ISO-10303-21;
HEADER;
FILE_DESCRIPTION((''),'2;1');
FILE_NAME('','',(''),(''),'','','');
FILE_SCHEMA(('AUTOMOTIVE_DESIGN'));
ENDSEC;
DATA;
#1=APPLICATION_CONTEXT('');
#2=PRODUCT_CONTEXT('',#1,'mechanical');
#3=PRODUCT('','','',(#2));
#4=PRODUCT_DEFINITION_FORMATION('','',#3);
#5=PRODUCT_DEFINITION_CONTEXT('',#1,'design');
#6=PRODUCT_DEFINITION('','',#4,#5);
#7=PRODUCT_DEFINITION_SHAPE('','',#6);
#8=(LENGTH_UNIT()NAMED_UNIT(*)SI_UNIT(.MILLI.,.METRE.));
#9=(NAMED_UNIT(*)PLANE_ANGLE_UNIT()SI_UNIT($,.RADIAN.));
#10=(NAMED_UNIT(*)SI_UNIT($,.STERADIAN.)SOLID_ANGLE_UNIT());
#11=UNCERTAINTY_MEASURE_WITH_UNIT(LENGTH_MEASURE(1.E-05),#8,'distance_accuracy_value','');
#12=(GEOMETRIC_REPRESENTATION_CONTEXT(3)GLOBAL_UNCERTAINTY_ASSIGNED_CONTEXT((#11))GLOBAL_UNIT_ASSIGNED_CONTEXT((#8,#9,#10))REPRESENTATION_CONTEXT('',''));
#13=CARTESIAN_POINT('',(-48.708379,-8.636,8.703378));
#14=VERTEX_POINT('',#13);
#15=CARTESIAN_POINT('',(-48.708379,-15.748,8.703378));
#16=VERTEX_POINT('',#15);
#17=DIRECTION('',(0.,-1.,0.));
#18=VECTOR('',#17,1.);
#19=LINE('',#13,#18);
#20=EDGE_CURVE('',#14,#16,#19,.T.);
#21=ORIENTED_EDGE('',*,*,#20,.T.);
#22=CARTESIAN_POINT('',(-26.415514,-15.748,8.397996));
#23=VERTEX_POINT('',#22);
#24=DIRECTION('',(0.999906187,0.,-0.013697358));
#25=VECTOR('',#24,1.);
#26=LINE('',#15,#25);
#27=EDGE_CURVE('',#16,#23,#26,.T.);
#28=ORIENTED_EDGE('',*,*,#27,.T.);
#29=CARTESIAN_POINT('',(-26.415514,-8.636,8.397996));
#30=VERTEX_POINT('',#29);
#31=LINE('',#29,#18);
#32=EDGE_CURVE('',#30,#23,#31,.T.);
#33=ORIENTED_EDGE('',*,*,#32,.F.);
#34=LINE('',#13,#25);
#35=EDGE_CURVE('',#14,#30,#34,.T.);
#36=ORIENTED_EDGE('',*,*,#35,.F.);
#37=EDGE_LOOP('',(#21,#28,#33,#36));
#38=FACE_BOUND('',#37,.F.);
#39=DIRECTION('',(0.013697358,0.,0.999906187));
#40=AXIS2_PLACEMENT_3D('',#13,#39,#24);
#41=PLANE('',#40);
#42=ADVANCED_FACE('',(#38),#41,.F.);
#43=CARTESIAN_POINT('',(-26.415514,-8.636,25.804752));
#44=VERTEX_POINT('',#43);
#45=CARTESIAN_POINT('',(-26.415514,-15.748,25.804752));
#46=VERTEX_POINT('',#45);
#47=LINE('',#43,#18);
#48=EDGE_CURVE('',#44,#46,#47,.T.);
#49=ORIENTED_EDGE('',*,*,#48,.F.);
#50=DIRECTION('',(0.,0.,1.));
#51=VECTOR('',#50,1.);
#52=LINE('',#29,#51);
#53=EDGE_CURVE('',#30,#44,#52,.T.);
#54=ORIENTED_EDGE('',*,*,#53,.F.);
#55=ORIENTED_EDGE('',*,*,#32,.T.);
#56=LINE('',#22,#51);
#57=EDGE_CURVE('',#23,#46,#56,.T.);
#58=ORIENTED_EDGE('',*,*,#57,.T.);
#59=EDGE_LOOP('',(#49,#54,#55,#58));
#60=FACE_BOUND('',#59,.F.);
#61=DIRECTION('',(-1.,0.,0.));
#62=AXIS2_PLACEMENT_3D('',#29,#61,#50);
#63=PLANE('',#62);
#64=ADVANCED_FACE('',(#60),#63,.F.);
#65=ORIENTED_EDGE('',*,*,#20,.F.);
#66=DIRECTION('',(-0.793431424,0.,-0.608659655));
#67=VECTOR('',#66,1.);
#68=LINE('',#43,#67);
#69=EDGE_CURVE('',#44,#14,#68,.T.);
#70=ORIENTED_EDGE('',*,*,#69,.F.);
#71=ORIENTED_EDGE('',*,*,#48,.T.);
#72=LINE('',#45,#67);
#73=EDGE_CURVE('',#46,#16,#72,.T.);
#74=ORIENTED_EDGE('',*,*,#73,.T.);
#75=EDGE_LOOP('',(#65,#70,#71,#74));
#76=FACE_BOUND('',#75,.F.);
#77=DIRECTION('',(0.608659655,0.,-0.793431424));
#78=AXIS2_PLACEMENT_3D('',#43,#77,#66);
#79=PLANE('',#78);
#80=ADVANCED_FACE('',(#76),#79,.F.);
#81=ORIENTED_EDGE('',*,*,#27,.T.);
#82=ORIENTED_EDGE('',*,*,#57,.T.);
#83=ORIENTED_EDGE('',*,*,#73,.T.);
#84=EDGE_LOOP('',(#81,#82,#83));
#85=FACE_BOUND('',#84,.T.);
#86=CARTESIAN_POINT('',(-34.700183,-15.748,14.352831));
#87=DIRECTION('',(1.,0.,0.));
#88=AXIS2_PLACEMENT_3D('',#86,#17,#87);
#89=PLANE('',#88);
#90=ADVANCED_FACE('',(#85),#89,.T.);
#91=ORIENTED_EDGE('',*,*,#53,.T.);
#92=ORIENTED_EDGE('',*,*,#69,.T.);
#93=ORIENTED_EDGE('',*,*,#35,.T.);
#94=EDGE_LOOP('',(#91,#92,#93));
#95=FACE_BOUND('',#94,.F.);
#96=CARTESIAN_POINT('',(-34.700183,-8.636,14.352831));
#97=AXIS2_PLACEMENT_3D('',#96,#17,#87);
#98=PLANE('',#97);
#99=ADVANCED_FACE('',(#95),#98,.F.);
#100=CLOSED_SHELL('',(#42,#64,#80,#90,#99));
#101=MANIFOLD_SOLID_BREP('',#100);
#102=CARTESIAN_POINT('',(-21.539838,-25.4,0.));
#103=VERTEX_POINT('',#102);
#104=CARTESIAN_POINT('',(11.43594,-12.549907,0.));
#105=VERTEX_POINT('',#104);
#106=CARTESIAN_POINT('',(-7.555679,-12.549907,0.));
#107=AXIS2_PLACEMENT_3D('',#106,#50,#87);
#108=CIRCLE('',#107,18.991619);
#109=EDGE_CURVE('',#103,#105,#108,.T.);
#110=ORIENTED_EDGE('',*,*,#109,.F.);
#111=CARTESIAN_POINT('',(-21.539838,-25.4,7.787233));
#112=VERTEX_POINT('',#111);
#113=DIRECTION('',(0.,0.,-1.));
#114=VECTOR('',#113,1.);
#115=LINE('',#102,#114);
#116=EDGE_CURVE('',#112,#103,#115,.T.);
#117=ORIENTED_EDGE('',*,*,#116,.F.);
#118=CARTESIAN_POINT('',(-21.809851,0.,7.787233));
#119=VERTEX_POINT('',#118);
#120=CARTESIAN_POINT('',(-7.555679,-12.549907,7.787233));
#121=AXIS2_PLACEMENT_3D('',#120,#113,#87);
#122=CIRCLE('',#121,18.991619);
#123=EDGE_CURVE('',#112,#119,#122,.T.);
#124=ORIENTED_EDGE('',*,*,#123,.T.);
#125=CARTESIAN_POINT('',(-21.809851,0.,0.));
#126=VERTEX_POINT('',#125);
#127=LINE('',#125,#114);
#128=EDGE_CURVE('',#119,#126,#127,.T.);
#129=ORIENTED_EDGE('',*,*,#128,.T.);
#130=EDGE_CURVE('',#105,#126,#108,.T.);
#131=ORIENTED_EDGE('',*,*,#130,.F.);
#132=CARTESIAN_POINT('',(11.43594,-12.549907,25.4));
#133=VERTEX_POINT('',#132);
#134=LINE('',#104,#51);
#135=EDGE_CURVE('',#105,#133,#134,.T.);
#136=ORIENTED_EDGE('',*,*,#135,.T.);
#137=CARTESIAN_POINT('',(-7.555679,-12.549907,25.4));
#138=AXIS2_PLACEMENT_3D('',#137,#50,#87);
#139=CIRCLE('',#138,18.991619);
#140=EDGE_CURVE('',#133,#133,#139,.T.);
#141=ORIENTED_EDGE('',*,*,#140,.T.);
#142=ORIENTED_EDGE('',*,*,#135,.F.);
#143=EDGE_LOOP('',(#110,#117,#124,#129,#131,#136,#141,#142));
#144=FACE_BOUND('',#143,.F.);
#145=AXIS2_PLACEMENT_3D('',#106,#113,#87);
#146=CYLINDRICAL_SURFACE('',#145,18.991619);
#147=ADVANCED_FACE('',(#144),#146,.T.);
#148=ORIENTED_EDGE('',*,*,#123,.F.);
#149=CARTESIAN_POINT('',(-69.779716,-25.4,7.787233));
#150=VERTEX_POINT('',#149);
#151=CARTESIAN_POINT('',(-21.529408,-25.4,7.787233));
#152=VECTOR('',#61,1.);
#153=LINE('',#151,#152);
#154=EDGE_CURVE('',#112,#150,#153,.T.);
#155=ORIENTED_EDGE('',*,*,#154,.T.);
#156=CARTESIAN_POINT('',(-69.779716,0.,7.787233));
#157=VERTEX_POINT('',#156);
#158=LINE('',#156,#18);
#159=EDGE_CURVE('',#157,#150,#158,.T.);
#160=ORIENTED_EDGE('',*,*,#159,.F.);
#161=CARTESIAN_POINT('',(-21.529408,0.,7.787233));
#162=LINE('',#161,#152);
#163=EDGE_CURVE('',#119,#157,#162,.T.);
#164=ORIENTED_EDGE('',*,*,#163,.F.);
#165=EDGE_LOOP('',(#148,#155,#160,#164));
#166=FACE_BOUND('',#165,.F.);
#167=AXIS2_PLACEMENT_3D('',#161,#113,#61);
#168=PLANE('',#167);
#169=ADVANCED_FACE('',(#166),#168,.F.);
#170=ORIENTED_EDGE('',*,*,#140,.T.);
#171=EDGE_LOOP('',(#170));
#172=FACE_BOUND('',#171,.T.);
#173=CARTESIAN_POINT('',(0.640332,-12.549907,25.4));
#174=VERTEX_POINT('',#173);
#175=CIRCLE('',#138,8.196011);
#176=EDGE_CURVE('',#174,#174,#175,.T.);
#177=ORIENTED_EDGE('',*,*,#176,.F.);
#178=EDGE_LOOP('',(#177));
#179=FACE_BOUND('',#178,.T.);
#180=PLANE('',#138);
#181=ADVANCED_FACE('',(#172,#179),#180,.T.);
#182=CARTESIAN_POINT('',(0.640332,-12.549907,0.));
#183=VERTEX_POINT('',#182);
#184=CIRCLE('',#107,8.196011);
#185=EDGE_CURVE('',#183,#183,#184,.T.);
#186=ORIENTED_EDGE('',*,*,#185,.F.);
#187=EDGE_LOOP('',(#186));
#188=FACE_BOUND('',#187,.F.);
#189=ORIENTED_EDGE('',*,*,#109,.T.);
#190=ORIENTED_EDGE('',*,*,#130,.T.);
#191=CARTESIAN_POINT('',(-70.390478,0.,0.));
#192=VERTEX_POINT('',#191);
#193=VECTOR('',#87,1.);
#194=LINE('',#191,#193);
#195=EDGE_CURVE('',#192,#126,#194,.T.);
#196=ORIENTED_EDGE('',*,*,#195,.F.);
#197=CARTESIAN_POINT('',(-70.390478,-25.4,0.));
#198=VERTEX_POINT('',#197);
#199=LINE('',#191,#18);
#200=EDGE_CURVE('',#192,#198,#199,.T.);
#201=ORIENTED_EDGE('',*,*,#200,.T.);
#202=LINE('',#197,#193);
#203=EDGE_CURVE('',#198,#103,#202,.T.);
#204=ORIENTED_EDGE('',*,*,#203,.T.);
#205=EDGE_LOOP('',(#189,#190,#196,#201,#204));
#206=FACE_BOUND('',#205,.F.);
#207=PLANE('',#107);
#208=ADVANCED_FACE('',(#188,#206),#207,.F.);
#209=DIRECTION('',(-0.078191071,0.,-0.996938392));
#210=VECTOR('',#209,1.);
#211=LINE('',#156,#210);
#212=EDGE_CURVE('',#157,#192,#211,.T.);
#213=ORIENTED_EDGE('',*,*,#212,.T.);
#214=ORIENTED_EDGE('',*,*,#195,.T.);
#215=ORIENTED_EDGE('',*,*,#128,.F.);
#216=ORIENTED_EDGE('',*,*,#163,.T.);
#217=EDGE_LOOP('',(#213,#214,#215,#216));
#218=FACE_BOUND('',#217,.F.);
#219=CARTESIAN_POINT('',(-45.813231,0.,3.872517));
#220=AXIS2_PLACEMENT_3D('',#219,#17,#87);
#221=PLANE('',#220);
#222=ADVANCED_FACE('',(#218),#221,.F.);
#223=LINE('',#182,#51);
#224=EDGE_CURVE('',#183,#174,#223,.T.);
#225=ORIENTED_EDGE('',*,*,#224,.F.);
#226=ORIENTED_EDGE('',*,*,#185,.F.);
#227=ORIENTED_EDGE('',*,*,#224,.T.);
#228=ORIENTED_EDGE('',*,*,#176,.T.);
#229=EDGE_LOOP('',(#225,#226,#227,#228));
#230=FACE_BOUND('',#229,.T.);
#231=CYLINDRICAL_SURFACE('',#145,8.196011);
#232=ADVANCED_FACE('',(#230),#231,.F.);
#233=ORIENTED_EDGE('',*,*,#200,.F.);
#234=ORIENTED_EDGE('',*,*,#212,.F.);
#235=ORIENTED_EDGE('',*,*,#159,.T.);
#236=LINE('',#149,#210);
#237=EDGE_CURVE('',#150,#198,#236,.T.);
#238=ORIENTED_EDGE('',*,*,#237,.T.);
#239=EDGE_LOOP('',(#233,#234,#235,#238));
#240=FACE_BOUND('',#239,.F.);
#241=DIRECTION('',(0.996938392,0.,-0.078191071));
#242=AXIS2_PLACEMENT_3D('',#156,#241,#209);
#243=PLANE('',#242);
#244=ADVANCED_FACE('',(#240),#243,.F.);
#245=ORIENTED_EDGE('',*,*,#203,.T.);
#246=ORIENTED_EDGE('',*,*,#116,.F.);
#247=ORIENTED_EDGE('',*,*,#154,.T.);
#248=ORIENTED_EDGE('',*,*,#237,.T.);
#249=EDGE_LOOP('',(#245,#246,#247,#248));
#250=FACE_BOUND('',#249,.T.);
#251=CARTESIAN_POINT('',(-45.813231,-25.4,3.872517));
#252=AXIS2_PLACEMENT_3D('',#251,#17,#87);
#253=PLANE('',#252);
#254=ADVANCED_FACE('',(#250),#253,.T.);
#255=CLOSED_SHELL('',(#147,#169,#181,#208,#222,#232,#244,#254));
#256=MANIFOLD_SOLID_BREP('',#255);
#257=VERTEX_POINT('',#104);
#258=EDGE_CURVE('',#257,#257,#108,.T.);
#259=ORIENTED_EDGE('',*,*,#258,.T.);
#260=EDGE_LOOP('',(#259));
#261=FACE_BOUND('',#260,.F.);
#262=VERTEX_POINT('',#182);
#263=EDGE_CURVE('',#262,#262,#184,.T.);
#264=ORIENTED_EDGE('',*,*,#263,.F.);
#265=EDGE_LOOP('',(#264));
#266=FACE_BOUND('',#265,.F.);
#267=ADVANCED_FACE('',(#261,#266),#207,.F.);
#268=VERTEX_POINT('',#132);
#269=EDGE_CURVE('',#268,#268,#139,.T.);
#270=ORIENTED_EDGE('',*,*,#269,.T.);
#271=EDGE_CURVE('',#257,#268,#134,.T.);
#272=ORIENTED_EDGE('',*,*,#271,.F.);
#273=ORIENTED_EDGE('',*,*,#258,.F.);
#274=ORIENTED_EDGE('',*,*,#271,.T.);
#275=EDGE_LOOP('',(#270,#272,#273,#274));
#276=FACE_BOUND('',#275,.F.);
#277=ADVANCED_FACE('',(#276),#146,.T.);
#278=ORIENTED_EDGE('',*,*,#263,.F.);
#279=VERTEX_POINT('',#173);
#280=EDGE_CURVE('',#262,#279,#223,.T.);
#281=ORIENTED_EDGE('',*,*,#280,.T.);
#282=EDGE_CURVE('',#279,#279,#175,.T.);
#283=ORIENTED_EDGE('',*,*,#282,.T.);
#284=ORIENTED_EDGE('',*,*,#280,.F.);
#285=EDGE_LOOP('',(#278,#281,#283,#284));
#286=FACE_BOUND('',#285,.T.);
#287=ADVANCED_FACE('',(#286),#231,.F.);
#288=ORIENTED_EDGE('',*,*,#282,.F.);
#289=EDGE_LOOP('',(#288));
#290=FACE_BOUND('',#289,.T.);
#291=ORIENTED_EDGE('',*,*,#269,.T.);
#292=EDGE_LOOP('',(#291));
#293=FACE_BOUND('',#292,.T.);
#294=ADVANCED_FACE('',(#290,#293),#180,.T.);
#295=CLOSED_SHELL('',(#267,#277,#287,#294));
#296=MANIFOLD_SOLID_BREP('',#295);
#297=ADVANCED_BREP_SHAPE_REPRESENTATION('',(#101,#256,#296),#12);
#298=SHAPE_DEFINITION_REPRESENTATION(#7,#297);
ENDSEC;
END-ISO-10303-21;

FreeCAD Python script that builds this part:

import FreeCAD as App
import Part
import Sketcher
from FreeCAD import Vector
Q = App.Units.Quantity

doc = App.newDocument("Part")
params = doc.addObject("Spreadsheet::Sheet", "Params")
for row, (alias, value) in enumerate([
    ("pad1_length", "1 in"),
    ("pad2_length", "1 in"),
    ("pad3_length", "0.28 in"),
    ("pad4_length", "1 in"),
], start=1):
    params.set(f"A{row}", alias)
    params.set(f"B{row}", "=" + value)
    params.setAlias(f"B{row}", alias)

body = doc.addObject("PartDesign::Body", "Body")

sketch1 = doc.addObject("Sketcher::SketchObject", "Sketch")
body.addObject(sketch1)
sketch1.AttachmentSupport = (doc.XZ_Plane, [""])
sketch1.MapMode = "FlatFace"
sketch1.addGeometry([
    Part.LineSegment(Vector(-70, 8, 0), Vector(-70, 0, 0)),
    Part.LineSegment(Vector(-70, 0, 0), Vector(-22, 0, 0)),
    Part.LineSegment(Vector(-22, 0, 0), Vector(-22, 8, 0)),
    Part.LineSegment(Vector(-22, 8, 0), Vector(-70, 8, 0)),
], False)
sketch1.addConstraint([
    Sketcher.Constraint("Coincident", 0, 2, 1, 1),
    Sketcher.Constraint("Coincident", 1, 2, 2, 1),
    Sketcher.Constraint("Coincident", 2, 2, 3, 1),
    Sketcher.Constraint("Coincident", 3, 2, 0, 1),
    Sketcher.Constraint("Horizontal", 1),
    Sketcher.Constraint("Vertical", 2),
    Sketcher.Constraint("Horizontal", 3),
    Sketcher.Constraint("PointOnObject", 0, 2, -1),
    Sketcher.Constraint("DistanceX", 1, 1, 1, 2, Q("48.86107 mm")),
    Sketcher.Constraint("DistanceX", 3, 2, 3, 1, Q("48.250308 mm")),
    Sketcher.Constraint("DistanceY", 2, 1, 2, 2, Q("7.787233 mm")),
    Sketcher.Constraint("DistanceX", 0, 2, -1, 1, Q("70.390478 mm")),
])
pad1 = doc.addObject("PartDesign::Pad", "Pad")
body.addObject(pad1)
pad1.Profile = sketch1
pad1.setExpression("Length", "Params.pad1_length")

sketch2 = doc.addObject("Sketcher::SketchObject", "Sketch001")
body.addObject(sketch2)
sketch2.AttachmentSupport = (doc.XY_Plane, [""])
sketch2.MapMode = "FlatFace"
sketch2.addGeometry([
    Part.Circle(Vector(-8, -13, 0), Vector(0, 0, 1), 19),
    Part.Circle(Vector(-8, -13, 0), Vector(0, 0, 1), 8),
], False)
sketch2.addConstraint([
    Sketcher.Constraint("Coincident", 1, 3, 0, 3),
    Sketcher.Constraint("Diameter", 0, Q("37.983238 mm")),
    Sketcher.Constraint("Diameter", 1, Q("16.392022 mm")),
    Sketcher.Constraint("DistanceX", 0, 3, -1, 1, Q("7.555679 mm")),
    Sketcher.Constraint("DistanceY", 0, 3, -1, 1, Q("12.549907 mm")),
])
pad2 = doc.addObject("PartDesign::Pad", "Pad001")
body.addObject(pad2)
pad2.Profile = sketch2
pad2.setExpression("Length", "Params.pad2_length")
body2 = doc.addObject("PartDesign::Body", "Body001")

sketch3 = doc.addObject("Sketcher::SketchObject", "Sketch002")
body2.addObject(sketch3)
sketch3.AttachmentSupport = (doc.getObject("XZ_Plane001"), [""])
sketch3.MapMode = "FlatFace"
sketch3.addGeometry([
    Part.LineSegment(Vector(-26, 8, 0), Vector(-26, 26, 0)),
    Part.LineSegment(Vector(-26, 26, 0), Vector(-49, 9, 0)),
    Part.LineSegment(Vector(-49, 9, 0), Vector(-26, 8, 0)),
], False)
sketch3.addConstraint([
    Sketcher.Constraint("Coincident", 0, 2, 1, 1),
    Sketcher.Constraint("Coincident", 1, 2, 2, 1),
    Sketcher.Constraint("Coincident", 2, 2, 0, 1),
    Sketcher.Constraint("Vertical", 0),
    Sketcher.Constraint("DistanceY", 0, 1, 0, 2, Q("17.406756 mm")),
    Sketcher.Constraint("DistanceX", 1, 2, -1, 1, Q("48.708379 mm")),
    Sketcher.Constraint("DistanceY", -1, 1, 1, 2, Q("8.703378 mm")),
    Sketcher.Constraint("Distance", 1, Q("28.096776 mm")),
    Sketcher.Constraint("Distance", 2, Q("22.294957 mm")),
])
pad3 = doc.addObject("PartDesign::Pad", "Pad002")
body2.addObject(pad3)
pad3.Profile = sketch3
pad3.setExpression("Length", "Params.pad3_length")
body3 = doc.addObject("PartDesign::Body", "Body002")
doc.recompute()

body2.Placement = App.Placement(Vector(0, -6.096, 0), App.Rotation(Vector(0, 0, 1), 0))
boolean = doc.addObject("PartDesign::Boolean", "Boolean")
body3.addObject(boolean)
boolean.Type = "Fuse"
boolean.addObjects([body2])
body4 = doc.addObject("PartDesign::Body", "Body003")

sketch4 = doc.addObject("Sketcher::SketchObject", "Sketch003")
body4.addObject(sketch4)
sketch4.AttachmentSupport = (doc.getObject("XY_Plane003"), [""])
sketch4.MapMode = "FlatFace"
sketch4.addGeometry([
    Part.Circle(Vector(-8, -13, 0), Vector(0, 0, 1), 19),
    Part.Circle(Vector(-8, -13, 0), Vector(0, 0, 1), 8),
], False)
sketch4.addConstraint([
    Sketcher.Constraint("Coincident", 1, 3, 0, 3),
    Sketcher.Constraint("Diameter", 0, Q("37.983238 mm")),
    Sketcher.Constraint("Diameter", 1, Q("16.392022 mm")),
    Sketcher.Constraint("DistanceX", 0, 3, -1, 1, Q("7.555679 mm")),
    Sketcher.Constraint("DistanceY", 0, 3, -1, 1, Q("12.549907 mm")),
])
pad4 = doc.addObject("PartDesign::Pad", "Pad003")
body4.addObject(pad4)
pad4.Profile = sketch4
pad4.setExpression("Length", "Params.pad4_length")
body5 = doc.addObject("PartDesign::Body", "Body004")
doc.recompute()

body3.Placement = App.Placement(Vector(0, -2.54, 0), App.Rotation(Vector(0, 0, 1), 0))
boolean2 = doc.addObject("PartDesign::Boolean", "Boolean001")
body5.addObject(boolean2)
boolean2.Type = "Fuse"
boolean2.addObjects([body3])

doc.recompute()
